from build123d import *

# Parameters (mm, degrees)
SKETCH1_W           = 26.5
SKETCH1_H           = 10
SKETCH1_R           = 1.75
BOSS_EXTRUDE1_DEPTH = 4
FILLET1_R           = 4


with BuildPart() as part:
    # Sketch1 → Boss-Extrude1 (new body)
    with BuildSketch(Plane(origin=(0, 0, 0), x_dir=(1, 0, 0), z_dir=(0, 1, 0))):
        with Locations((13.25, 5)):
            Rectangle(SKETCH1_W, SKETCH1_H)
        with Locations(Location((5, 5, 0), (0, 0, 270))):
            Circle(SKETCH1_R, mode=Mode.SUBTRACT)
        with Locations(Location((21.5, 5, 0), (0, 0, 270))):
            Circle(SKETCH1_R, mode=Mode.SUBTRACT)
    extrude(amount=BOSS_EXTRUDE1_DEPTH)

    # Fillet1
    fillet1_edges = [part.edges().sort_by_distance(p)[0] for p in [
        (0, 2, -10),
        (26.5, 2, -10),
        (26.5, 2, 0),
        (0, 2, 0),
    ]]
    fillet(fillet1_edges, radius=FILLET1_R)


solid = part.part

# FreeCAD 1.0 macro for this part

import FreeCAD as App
import Part
import Sketcher
from FreeCAD import Vector


def edges_at(feature, points):
    """Names of the edges that pass closest to the given points."""
    edges = feature.Shape.Edges
    near = lambda p: min(range(len(edges)), key=lambda i: edges[i].distToShape(Part.Vertex(*p))[0])
    return sorted({f"Edge{near(p) + 1}" for p in points})


def add_polygon(sketch, points):
    """Adds a closed chain of lines whose ends are joined by coincident constraints."""
    first, n = sketch.GeometryCount, len(points)
    for a, b in zip(points, points[1:] + points[:1]):
        sketch.addGeometry(Part.LineSegment(App.Vector(*a, 0), App.Vector(*b, 0)), False)
    for i in range(n):
        sketch.addConstraint(Sketcher.Constraint("Coincident", first + i, 2, first + (i + 1) % n, 1))

doc = App.newDocument("Part")
body = doc.addObject("PartDesign::Body", "Body")

# Sketch on XZ plane
sketch1 = body.newObject("Sketcher::SketchObject", "Sketch")
sketch1.AttachmentSupport = (doc.getObject("XZ_Plane"), [""])
sketch1.MapMode = "FlatFace"
add_polygon(sketch1, [(0, -10), (0, 0), (26.5, 0), (26.5, -10)])  # lines 0-3
sketch1.addGeometry(Part.Circle(Vector(5, -5, 0), Vector(0, 0, 1), 1.8), False)  # 4
sketch1.addGeometry(Part.Circle(Vector(21.5, -5, 0), Vector(0, 0, 1), 1.8), False)  # 5
sketch1.addConstraint([
    Sketcher.Constraint("Vertical", 0),
    Sketcher.Constraint("Horizontal", 1),
    Sketcher.Constraint("Vertical", 2),
    Sketcher.Constraint("Horizontal", 3),
    Sketcher.Constraint("Coincident", 0, 2, -1, 1),
    Sketcher.Constraint("Equal", 4, 5),
    Sketcher.Constraint("Horizontal", 4, 3, 5, 3),
    Sketcher.Constraint("Diameter", 4, 3.5),
    Sketcher.Constraint("DistanceY", 0, 1, 0, 2, 10.0),
    Sketcher.Constraint("DistanceX", 1, 1, 1, 2, 26.5),
    Sketcher.Constraint("DistanceX", -1, 1, 4, 3, 5.0),
    Sketcher.Constraint("DistanceY", 4, 3, -1, 1, 5.0),
    Sketcher.Constraint("DistanceX", 5, 3, 1, 2, 5.0),
])
pad1 = body.newObject("PartDesign::Pad", "Pad")
pad1.Profile = sketch1
pad1.Length = 4
pad1.Reversed = True
doc.recompute()

fillet = body.newObject("PartDesign::Fillet", "Fillet")
fillet.Base = (pad1, edges_at(pad1, [
    (0, 2, -10),
    (26.5, 2, -10),
    (26.5, 2, 0),
    (0, 2, 0),
]))
fillet.Radius = 4

doc.recompute()
